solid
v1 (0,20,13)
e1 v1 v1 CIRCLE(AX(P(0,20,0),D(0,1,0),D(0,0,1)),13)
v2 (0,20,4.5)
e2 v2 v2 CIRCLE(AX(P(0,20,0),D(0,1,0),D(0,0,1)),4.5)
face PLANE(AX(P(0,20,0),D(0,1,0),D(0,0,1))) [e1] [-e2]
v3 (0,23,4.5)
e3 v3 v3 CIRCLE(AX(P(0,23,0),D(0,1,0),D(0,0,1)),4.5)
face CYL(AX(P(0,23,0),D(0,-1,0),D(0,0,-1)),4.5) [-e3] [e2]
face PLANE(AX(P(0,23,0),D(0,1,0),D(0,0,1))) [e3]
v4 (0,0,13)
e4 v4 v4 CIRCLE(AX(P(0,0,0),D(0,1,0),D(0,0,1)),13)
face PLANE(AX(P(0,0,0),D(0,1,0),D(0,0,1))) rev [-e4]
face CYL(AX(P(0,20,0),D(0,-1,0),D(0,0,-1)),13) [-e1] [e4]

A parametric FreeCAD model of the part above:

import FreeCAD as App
import Part
import Sketcher

doc = App.newDocument("Part")
body = doc.addObject("PartDesign::Body", "Body")

sketch1 = body.newObject("Sketcher::SketchObject", "Sketch")
sketch1.AttachmentSupport = (doc.getObject("XZ_Plane"), [""])
sketch1.MapMode = "FlatFace"
sketch1.addGeometry(Part.Circle(App.Vector(0, 0, 0), App.Vector(0, 0, 1), 13), False)
sketch1.addConstraint([
    Sketcher.Constraint("Coincident", 0, 3, -1, 1),
    Sketcher.Constraint("Diameter", 0, 26.0),
])
pad1 = body.newObject("PartDesign::Pad", "Pad")
pad1.Profile = sketch1
pad1.Length = 20
pad1.Reversed = True

sketch2 = body.newObject("Sketcher::SketchObject", "Sketch001")
sketch2.AttachmentSupport = (doc.getObject("XZ_Plane"), [""])
sketch2.MapMode = "FlatFace"
sketch2.addGeometry(Part.Circle(App.Vector(0, 0, 0), App.Vector(0, 0, 1), 13), False)
sketch2.addConstraint([
    Sketcher.Constraint("Coincident", 0, 3, -1, 1),
    Sketcher.Constraint("Diameter", 0, 26.0),
])
pad2 = body.newObject("PartDesign::Pad", "Pad001")
pad2.Profile = sketch2
pad2.Length = 20
pad2.Reversed = True

sketch3 = body.newObject("Sketcher::SketchObject", "Sketch002")
sketch3.AttachmentSupport = (doc.getObject("XZ_Plane"), [""])
sketch3.MapMode = "FlatFace"
sketch3.addGeometry(Part.Circle(App.Vector(0, 0, 0), App.Vector(0, 0, 1), 13), False)
sketch3.addConstraint([
    Sketcher.Constraint("Coincident", 0, 3, -1, 1),
    Sketcher.Constraint("Diameter", 0, 26.0),
])
pad3 = body.newObject("PartDesign::Pad", "Pad002")
pad3.Profile = sketch3
pad3.Length = 20
pad3.Reversed = True

sketch4 = body.newObject("Sketcher::SketchObject", "Sketch003")
sketch4.AttachmentSupport = (doc.getObject("XZ_Plane"), [""])
sketch4.MapMode = "FlatFace"
sketch4.AttachmentOffset = App.Placement(App.Vector(0, 0, -20), App.Rotation())
sketch4.addGeometry(Part.Circle(App.Vector(0, 0, 0), App.Vector(0, 0, 1), 4.5), False)
sketch4.addConstraint([
    Sketcher.Constraint("Coincident", 0, 3, -1, 1),
    Sketcher.Constraint("Diameter", 0, 9.0),
])
pad4 = body.newObject("PartDesign::Pad", "Pad003")
pad4.Profile = sketch4
pad4.Length = 3
pad4.Reversed = True

doc.recompute()
